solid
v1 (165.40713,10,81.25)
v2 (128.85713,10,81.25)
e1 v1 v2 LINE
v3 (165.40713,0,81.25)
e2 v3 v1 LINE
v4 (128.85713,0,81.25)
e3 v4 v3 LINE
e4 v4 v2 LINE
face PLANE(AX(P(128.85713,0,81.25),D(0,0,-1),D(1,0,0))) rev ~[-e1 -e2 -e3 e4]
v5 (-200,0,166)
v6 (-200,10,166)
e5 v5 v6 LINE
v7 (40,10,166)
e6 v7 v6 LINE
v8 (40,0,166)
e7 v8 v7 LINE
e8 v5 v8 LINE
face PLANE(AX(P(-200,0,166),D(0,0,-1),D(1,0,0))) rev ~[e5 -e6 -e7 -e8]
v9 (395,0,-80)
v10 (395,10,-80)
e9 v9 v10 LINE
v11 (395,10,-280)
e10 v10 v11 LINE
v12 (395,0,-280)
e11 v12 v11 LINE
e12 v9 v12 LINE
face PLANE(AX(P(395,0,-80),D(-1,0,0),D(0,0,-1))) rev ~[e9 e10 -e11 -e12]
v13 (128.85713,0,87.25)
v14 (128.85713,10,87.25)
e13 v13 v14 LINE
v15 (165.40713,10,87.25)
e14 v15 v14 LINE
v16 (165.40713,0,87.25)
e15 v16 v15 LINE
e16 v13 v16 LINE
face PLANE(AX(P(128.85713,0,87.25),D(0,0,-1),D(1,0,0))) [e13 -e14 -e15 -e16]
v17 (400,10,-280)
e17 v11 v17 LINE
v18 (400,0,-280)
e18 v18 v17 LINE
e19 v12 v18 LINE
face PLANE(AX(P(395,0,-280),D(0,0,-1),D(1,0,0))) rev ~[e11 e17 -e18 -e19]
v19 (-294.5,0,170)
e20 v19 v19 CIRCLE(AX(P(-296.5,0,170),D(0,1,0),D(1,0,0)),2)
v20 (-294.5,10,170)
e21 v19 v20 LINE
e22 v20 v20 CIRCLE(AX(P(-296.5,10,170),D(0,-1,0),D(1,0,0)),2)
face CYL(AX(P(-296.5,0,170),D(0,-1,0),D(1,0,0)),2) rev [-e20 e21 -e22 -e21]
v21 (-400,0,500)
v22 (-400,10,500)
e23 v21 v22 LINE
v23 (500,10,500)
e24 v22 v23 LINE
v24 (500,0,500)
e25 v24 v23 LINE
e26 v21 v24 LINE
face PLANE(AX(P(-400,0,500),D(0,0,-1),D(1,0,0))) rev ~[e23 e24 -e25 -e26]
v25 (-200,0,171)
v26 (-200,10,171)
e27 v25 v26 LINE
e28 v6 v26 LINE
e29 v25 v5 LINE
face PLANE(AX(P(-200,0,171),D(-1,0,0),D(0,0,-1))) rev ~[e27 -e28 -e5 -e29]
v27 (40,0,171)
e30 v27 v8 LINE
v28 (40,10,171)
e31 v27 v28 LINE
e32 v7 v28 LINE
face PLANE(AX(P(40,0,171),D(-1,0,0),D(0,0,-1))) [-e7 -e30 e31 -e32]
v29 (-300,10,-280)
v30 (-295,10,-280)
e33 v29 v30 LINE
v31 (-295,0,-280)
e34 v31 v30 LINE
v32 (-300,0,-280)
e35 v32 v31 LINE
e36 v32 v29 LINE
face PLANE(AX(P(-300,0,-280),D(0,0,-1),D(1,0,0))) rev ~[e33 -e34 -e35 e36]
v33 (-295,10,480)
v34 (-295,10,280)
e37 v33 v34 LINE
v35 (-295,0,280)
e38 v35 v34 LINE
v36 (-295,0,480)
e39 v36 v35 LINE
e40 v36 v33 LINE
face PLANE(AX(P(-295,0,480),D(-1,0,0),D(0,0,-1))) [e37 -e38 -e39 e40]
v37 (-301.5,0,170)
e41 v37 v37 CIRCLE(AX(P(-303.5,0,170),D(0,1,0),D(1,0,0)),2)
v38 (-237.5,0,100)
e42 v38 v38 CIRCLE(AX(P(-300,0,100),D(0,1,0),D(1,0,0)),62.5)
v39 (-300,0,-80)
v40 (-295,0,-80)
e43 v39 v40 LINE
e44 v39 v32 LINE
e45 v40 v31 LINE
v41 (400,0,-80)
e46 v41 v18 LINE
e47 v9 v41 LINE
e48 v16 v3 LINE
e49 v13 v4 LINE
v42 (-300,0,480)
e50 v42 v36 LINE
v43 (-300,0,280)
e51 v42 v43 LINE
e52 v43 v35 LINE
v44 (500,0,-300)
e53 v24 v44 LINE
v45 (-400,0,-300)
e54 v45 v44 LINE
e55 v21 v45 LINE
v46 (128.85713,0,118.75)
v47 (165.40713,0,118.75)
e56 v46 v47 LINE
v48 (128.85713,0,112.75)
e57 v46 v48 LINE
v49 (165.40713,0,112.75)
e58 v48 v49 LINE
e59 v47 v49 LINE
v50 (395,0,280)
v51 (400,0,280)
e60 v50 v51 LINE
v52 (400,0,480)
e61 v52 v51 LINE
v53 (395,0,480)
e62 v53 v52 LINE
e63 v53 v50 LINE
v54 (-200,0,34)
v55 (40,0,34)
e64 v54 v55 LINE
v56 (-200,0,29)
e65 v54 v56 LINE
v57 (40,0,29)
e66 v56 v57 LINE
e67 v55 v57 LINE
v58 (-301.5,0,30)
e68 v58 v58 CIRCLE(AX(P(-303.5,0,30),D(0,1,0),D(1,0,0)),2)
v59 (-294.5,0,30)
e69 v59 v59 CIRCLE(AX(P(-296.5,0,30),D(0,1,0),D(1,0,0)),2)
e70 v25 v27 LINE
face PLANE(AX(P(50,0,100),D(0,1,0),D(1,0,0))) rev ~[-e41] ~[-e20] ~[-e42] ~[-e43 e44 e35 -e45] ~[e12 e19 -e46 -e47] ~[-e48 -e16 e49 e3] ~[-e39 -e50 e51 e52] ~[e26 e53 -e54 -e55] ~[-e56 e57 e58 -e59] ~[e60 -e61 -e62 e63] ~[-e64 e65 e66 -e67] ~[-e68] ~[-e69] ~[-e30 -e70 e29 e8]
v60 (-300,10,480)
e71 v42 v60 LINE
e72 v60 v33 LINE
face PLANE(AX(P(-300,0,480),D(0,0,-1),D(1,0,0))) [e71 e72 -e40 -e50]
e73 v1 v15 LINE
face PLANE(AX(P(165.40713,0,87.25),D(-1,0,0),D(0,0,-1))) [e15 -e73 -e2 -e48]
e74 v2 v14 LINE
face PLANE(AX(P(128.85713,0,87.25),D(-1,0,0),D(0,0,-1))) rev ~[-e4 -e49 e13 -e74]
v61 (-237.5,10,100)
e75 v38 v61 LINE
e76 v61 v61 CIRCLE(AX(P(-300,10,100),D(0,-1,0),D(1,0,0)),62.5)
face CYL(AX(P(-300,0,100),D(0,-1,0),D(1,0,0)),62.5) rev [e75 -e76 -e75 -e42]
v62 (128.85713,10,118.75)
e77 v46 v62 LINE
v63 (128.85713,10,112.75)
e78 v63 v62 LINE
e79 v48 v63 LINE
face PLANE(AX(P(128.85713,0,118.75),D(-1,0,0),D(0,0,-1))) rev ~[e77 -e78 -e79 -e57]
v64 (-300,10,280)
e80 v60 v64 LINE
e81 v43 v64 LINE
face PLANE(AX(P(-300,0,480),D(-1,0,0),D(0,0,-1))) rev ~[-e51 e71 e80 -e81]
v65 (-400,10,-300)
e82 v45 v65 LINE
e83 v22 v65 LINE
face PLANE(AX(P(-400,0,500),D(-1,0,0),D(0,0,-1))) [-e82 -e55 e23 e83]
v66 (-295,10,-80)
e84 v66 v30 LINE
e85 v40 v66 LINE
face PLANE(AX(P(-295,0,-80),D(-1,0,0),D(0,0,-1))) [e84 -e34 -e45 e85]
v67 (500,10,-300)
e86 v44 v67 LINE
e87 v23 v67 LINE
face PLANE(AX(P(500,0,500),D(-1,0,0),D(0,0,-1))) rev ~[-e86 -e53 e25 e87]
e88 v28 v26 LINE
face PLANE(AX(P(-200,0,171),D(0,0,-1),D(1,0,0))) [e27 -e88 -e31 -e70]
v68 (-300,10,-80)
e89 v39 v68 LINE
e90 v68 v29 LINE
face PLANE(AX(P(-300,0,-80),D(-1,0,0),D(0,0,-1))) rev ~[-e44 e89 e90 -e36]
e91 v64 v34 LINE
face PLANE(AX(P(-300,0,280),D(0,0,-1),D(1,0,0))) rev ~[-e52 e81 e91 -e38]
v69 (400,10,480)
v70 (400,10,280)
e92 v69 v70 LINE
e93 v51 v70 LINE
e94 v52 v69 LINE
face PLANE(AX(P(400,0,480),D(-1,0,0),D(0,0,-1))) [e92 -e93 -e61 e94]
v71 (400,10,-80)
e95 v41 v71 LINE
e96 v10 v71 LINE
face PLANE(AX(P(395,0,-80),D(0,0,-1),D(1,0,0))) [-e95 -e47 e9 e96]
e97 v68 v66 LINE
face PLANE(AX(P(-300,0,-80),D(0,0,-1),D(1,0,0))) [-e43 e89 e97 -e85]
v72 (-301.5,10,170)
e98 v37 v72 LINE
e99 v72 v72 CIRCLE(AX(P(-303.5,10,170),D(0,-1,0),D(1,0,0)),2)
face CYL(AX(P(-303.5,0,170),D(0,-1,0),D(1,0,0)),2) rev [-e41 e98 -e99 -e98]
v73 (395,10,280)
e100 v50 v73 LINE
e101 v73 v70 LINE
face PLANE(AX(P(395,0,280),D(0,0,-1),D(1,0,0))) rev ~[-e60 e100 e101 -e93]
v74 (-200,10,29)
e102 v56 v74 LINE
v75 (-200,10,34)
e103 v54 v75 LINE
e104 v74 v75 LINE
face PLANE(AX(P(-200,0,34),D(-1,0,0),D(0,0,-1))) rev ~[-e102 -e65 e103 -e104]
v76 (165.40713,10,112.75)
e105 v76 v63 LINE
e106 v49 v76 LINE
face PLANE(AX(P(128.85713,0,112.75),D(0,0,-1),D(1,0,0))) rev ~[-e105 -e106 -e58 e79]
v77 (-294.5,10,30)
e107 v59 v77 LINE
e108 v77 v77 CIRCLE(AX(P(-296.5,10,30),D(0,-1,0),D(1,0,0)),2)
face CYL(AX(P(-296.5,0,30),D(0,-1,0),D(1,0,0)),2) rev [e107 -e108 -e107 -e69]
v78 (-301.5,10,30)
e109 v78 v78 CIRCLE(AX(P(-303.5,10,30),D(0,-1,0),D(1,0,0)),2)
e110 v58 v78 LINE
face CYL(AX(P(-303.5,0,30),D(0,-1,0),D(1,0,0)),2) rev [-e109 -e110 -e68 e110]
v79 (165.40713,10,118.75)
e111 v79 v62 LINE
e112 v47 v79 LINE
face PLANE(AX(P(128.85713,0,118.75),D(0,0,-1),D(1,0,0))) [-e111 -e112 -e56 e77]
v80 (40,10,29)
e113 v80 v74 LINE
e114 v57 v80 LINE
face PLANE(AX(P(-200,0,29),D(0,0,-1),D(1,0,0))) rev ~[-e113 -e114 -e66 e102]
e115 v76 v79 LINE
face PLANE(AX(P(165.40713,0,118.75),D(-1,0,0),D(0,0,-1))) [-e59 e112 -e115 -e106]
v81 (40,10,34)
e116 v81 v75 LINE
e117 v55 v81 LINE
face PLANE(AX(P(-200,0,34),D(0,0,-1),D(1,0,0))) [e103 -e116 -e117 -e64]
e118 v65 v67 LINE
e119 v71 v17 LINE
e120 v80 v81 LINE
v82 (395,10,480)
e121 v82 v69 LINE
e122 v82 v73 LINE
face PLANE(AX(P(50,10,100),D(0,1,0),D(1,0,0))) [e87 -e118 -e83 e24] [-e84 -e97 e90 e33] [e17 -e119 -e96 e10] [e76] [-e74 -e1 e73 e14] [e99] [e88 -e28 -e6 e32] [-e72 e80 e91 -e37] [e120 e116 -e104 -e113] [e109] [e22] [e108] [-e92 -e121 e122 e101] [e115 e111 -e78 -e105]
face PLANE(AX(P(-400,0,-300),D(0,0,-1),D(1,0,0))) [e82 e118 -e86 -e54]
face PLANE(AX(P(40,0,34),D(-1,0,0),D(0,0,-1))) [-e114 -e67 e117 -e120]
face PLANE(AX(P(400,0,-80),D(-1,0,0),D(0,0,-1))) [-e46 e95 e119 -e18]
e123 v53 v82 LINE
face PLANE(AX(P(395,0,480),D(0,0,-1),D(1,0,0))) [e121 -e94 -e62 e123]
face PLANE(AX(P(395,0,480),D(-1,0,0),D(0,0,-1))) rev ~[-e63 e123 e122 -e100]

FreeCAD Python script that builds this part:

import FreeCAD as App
import Part
import Sketcher
Q = App.Units.Quantity


def add_polygon(sketch, points):
    """Adds a closed chain of lines whose ends are joined by coincident constraints."""
    first, n = sketch.GeometryCount, len(points)
    for a, b in zip(points, points[1:] + points[:1]):
        sketch.addGeometry(Part.LineSegment(App.Vector(*a, 0), App.Vector(*b, 0)), False)
    for i in range(n):
        sketch.addConstraint(Sketcher.Constraint("Coincident", first + i, 2, first + (i + 1) % n, 1))

doc = App.newDocument("Part")
body = doc.addObject("PartDesign::Body", "Body")

sketch1 = body.newObject("Sketcher::SketchObject", "Sketch")
sketch1.AttachmentSupport = (doc.getObject("XZ_Plane"), [""])
sketch1.MapMode = "FlatFace"
add_polygon(sketch1, [(-400, -300), (-400, 500), (500, 500), (500, -300)])
add_polygon(sketch1, [(-295, 480), (-300, 480), (-300, 280), (-295, 280)])
add_polygon(sketch1, [(400, 480), (395, 480), (395, 280), (400, 280)])
add_polygon(sketch1, [(-295, -80), (-300, -80), (-300, -280), (-295, -280)])
add_polygon(sketch1, [(400, -80), (395, -80), (395, -280), (400, -280)])
sketch1.addConstraint([
    Sketcher.Constraint("Vertical", 0),
    Sketcher.Constraint("Horizontal", 1),
    Sketcher.Constraint("Vertical", 2),
    Sketcher.Constraint("Horizontal", 3),
    Sketcher.Constraint("Horizontal", 4),
    Sketcher.Constraint("Vertical", 5),
    Sketcher.Constraint("Horizontal", 6),
    Sketcher.Constraint("Vertical", 7),
    Sketcher.Constraint("Horizontal", 8),
    Sketcher.Constraint("Vertical", 9),
    Sketcher.Constraint("Horizontal", 10),
    Sketcher.Constraint("Vertical", 11),
    Sketcher.Constraint("Horizontal", 12),
    Sketcher.Constraint("Vertical", 13),
    Sketcher.Constraint("Horizontal", 14),
    Sketcher.Constraint("Vertical", 15),
    Sketcher.Constraint("Horizontal", 16),
    Sketcher.Constraint("Vertical", 17),
    Sketcher.Constraint("Horizontal", 18),
    Sketcher.Constraint("Vertical", 19),
    Sketcher.Constraint("Symmetric", 5, 2, 13, 2, -1),
    Sketcher.Constraint("Symmetric", 9, 2, 17, 2, -1),
    Sketcher.Constraint("Horizontal", 7, 2, 8, 2),
    Sketcher.Constraint("Horizontal", 6, 2, 9, 2),
    Sketcher.Constraint("Horizontal", 15, 2, 16, 2),
    Sketcher.Constraint("Vertical", 7, 2, 14, 2),
    Sketcher.Constraint("Vertical", 11, 2, 18, 2),
    Sketcher.Constraint("Equal", 6, 8),
    Sketcher.Constraint("Equal", 11, 13),
    Sketcher.Constraint("DistanceX", 1, 1, 1, 2, Q("900 mm")),
    Sketcher.Constraint("DistanceX", 4, 2, 4, 1, Q("5 mm")),
    Sketcher.Constraint("DistanceY", 0, 1, 0, 2, Q("800 mm")),
    Sketcher.Constraint("DistanceY", 5, 2, 5, 1, Q("200 mm")),
    Sketcher.Constraint("DistanceX", 0, 2, -1, 1, Q("400 mm")),
    Sketcher.Constraint("DistanceY", -1, 1, 0, 2, Q("500 mm")),
    Sketcher.Constraint("DistanceX", 4, 2, -1, 1, Q("300 mm")),
    Sketcher.Constraint("DistanceY", -1, 1, 4, 2, Q("480 mm")),
    Sketcher.Constraint("DistanceX", -1, 1, 8, 2, Q("395 mm")),
])
pad1 = body.newObject("PartDesign::Pad", "Pad")
pad1.Profile = sketch1
pad1.Length = 10
pad1.Reversed = True

sketch2 = body.newObject("Sketcher::SketchObject", "Sketch001")
sketch2.AttachmentSupport = (doc.getObject("XZ_Plane"), [""])
sketch2.MapMode = "FlatFace"
sketch2.addGeometry(Part.Circle(App.Vector(-300, 100, 0), App.Vector(0, 0, 1), 62.5), False)
sketch2.addConstraint([
    Sketcher.Constraint("Diameter", 0, Q("125 mm")),
    Sketcher.Constraint("DistanceX", 0, 3, -1, 1, Q("300 mm")),
    Sketcher.Constraint("DistanceY", -1, 1, 0, 3, Q("100 mm")),
])
pocket1 = body.newObject("PartDesign::Pocket", "Pocket")
pocket1.Profile = sketch2
pocket1.Length = 196

sketch3 = body.newObject("Sketcher::SketchObject", "Sketch002")
sketch3.AttachmentSupport = (doc.getObject("XZ_Plane"), [""])
sketch3.MapMode = "FlatFace"
sketch3.addGeometry(Part.Circle(App.Vector(-296.5, 30, 0), App.Vector(0, 0, 1), 2), False)
sketch3.addGeometry(Part.Circle(App.Vector(-303.5, 30, 0), App.Vector(0, 0, 1), 2), False)
sketch3.addGeometry(Part.Circle(App.Vector(-303.5, 170, 0), App.Vector(0, 0, 1), 2), False)
sketch3.addGeometry(Part.Circle(App.Vector(-296.5, 170, 0), App.Vector(0, 0, 1), 2), False)
add_polygon(sketch3, [(128.85713, 112.75), (128.85713, 118.75), (165.40713, 118.75), (165.40713, 112.75)])
add_polygon(sketch3, [(128.85713, 81.25), (128.85713, 87.25), (165.40713, 87.25), (165.40713, 81.25)])
add_polygon(sketch3, [(-200, 166), (-200, 171), (40, 171), (40, 166)])
add_polygon(sketch3, [(-200, 29), (-200, 34), (40, 34), (40, 29)])
sketch3.addConstraint([
    Sketcher.Constraint("Vertical", 4),
    Sketcher.Constraint("Horizontal", 5),
    Sketcher.Constraint("Vertical", 6),
    Sketcher.Constraint("Horizontal", 7),
    Sketcher.Constraint("Vertical", 8),
    Sketcher.Constraint("Horizontal", 9),
    Sketcher.Constraint("Vertical", 10),
    Sketcher.Constraint("Horizontal", 11),
    Sketcher.Constraint("Vertical", 12),
    Sketcher.Constraint("Horizontal", 13),
    Sketcher.Constraint("Vertical", 14),
    Sketcher.Constraint("Horizontal", 15),
    Sketcher.Constraint("Vertical", 16),
    Sketcher.Constraint("Horizontal", 17),
    Sketcher.Constraint("Vertical", 18),
    Sketcher.Constraint("Horizontal", 19),
    Sketcher.Constraint("Equal", 0, 1),
    Sketcher.Constraint("Equal", 1, 2),
    Sketcher.Constraint("Equal", 2, 3),
    Sketcher.Constraint("Horizontal", 0, 3, 1, 3),
    Sketcher.Constraint("Horizontal", 2, 3, 3, 3),
    Sketcher.Constraint("Vertical", 1, 3, 2, 3),
    Sketcher.Constraint("Vertical", 0, 3, 3, 3),
    Sketcher.Constraint("Vertical", 7, 2, 8, 2),
    Sketcher.Constraint("Vertical", 6, 2, 9, 2),
    Sketcher.Constraint("Vertical", 15, 2, 16, 2),
    Sketcher.Constraint("Vertical", 14, 2, 17, 2),
    Sketcher.Constraint("Equal", 6, 8),
    Sketcher.Constraint("Equal", 14, 16),
    Sketcher.Constraint("Diameter", 0, Q("4 mm")),
    Sketcher.Constraint("DistanceX", 13, 1, 13, 2, Q("240 mm")),
    Sketcher.Constraint("DistanceY", 4, 1, 4, 2, Q("6 mm")),
    Sketcher.Constraint("DistanceY", 12, 1, 12, 2, Q("5 mm")),
    Sketcher.Constraint("DistanceY", -1, 1, 0, 3, Q("30 mm")),
    Sketcher.Constraint("DistanceY", -1, 1, 2, 3, Q("170 mm")),
    Sketcher.Constraint("DistanceX", 12, 2, -1, 1, Q("200 mm")),
    Sketcher.Constraint("DistanceY", -1, 1, 12, 2, Q("171 mm")),
    Sketcher.Constraint("DistanceY", -1, 1, 16, 2, Q("34 mm")),
    Sketcher.Constraint("DistanceX", 1, 3, 0, 3, Q("7 mm")),
    Sketcher.Constraint("DistanceX", 5, 1, 5, 2, Q("36.55 mm")),
    Sketcher.Constraint("DistanceX", 0, 3, -1, 1, Q("296.5 mm")),
    Sketcher.Constraint("DistanceY", 8, 2, 7, 2, Q("25.5 mm")),
    Sketcher.Constraint("DistanceY", -1, 1, 4, 2, Q("118.75 mm")),
    Sketcher.Constraint("DistanceX", -1, 1, 4, 2, Q("128.85713 mm")),
])
pocket2 = body.newObject("PartDesign::Pocket", "Pocket001")
pocket2.Profile = sketch3
pocket2.Type = "ThroughAll"

doc.recompute()
